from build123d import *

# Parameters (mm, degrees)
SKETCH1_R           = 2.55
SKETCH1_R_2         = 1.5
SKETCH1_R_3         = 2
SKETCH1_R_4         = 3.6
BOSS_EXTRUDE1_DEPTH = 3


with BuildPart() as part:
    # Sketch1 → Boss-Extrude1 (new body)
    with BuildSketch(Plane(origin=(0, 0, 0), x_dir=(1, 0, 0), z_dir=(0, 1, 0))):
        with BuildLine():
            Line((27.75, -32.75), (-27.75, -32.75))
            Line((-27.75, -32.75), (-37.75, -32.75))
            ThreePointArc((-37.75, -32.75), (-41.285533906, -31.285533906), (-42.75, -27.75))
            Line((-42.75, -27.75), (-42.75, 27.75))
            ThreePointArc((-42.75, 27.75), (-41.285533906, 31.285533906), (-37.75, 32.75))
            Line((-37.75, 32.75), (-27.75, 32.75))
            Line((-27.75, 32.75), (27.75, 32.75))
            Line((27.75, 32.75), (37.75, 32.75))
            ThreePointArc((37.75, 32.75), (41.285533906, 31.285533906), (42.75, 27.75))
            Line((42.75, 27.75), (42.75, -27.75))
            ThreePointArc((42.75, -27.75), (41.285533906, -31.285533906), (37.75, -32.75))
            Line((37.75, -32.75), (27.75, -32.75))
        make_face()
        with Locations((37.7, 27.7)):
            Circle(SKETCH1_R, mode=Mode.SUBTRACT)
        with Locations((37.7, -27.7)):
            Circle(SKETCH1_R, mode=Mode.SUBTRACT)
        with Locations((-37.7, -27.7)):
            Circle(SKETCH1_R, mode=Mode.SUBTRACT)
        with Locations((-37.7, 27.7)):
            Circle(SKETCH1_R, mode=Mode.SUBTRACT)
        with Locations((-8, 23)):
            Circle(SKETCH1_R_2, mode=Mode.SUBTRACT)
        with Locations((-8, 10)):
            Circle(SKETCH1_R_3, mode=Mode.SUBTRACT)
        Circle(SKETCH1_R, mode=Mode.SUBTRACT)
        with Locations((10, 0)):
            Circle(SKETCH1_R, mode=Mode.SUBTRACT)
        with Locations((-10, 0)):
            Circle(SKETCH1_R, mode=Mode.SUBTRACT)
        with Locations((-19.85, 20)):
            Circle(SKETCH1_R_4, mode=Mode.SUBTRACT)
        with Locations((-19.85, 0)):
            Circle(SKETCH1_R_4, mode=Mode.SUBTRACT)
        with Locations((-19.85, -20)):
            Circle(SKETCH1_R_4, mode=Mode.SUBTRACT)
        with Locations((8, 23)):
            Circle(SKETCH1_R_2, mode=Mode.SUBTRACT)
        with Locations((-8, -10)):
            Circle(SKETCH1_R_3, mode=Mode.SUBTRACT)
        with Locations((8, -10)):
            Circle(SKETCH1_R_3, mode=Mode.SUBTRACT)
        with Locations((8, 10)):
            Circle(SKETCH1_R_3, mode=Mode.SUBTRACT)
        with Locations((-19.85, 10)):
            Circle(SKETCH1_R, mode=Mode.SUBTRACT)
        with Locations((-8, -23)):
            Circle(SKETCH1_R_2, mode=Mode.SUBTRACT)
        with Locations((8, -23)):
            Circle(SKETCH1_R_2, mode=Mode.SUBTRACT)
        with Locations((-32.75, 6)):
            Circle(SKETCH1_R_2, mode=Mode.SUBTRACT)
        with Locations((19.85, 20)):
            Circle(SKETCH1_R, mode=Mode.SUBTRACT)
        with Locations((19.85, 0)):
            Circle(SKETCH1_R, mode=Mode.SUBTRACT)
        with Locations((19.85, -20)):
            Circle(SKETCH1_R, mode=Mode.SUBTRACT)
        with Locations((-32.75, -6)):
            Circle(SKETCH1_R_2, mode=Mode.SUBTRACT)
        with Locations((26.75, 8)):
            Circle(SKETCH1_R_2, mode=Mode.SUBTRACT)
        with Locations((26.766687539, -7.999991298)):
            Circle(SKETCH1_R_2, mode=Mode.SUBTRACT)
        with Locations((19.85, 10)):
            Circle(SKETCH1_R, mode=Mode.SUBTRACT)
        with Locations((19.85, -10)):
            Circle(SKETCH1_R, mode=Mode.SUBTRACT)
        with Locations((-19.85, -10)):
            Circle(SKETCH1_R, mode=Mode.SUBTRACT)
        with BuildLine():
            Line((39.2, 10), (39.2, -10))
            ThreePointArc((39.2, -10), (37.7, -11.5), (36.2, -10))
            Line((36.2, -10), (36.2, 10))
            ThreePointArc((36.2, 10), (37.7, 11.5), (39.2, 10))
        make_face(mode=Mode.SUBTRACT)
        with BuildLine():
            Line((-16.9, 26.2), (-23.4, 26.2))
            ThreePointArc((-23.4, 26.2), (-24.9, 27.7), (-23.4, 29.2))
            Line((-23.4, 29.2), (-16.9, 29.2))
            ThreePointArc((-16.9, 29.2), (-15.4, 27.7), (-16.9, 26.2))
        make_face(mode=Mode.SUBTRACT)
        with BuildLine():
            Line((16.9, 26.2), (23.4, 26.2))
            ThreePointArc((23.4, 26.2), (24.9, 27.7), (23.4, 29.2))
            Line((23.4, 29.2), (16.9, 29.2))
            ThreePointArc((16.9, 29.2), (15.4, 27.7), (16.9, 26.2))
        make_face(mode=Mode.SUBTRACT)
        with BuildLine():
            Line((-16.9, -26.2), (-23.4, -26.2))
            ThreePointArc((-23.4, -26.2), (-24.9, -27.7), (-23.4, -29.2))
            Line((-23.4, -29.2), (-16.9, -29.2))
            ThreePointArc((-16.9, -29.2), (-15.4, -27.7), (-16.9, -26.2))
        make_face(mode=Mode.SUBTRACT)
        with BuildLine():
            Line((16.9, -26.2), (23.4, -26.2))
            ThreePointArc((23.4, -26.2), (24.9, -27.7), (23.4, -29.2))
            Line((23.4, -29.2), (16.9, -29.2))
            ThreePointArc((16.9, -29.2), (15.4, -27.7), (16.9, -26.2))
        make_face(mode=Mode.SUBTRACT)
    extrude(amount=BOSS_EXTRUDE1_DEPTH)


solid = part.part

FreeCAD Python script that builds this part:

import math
import FreeCAD as App
import Part
import Sketcher

doc = App.newDocument("Part")
body = doc.addObject("PartDesign::Body", "Body")

# Sketch on XZ plane
sketch1 = body.newObject("Sketcher::SketchObject", "Sketch")
sketch1.AttachmentSupport = (doc.getObject("XZ_Plane"), [""])
sketch1.MapMode = "FlatFace"
sketch1.addGeometry([
    Part.ArcOfCircle(Part.Circle(App.Vector(-37.8, 27.8, 0), App.Vector(0, 0, 1), 5), math.radians(90), math.radians(180)),  # 0
    Part.LineSegment(App.Vector(-37.8, 32.8, 0), App.Vector(37.8, 32.8, 0)),  # 1
    Part.ArcOfCircle(Part.Circle(App.Vector(37.8, 27.8, 0), App.Vector(0, 0, 1), 5), math.radians(0), math.radians(90)),  # 2
    Part.LineSegment(App.Vector(42.8, 27.8, 0), App.Vector(42.8, -27.8, 0)),  # 3
    Part.ArcOfCircle(Part.Circle(App.Vector(37.8, -27.8, 0), App.Vector(0, 0, 1), 5), math.radians(-90), math.radians(0)),  # 4
    Part.LineSegment(App.Vector(37.8, -32.8, 0), App.Vector(-37.8, -32.8, 0)),  # 5
    Part.ArcOfCircle(Part.Circle(App.Vector(-37.8, -27.8, 0), App.Vector(0, 0, 1), 5), math.radians(180), math.radians(270)),  # 6
    Part.LineSegment(App.Vector(-42.8, -27.8, 0), App.Vector(-42.8, 27.8, 0)),  # 7
    Part.Circle(App.Vector(37.7, 27.7, 0), App.Vector(0, 0, 1), 2.5),  # 8
    Part.LineSegment(App.Vector(16.9, 26.2, 0), App.Vector(23.4, 26.2, 0)),  # 9
    Part.ArcOfCircle(Part.Circle(App.Vector(23.4, 27.7, 0), App.Vector(0, 0, 1), 1.5), math.radians(-90), math.radians(90)),  # 10
    Part.LineSegment(App.Vector(23.4, 29.2, 0), App.Vector(16.9, 29.2, 0)),  # 11
    Part.ArcOfCircle(Part.Circle(App.Vector(16.9, 27.7, 0), App.Vector(0, 0, 1), 1.5), math.radians(90), math.radians(270)),  # 12
    Part.Circle(App.Vector(8, 23, 0), App.Vector(0, 0, 1), 1.5),  # 13
    Part.Circle(App.Vector(19.9, 20, 0), App.Vector(0, 0, 1), 2.5),  # 14
    Part.Circle(App.Vector(26.8, 8, 0), App.Vector(0, 0, 1), 1.5),  # 15
    Part.LineSegment(App.Vector(39.2, -10, 0), App.Vector(39.2, 10, 0)),  # 16
    Part.ArcOfCircle(Part.Circle(App.Vector(37.7, 10, 0), App.Vector(0, 0, 1), 1.5), math.radians(0), math.radians(180)),  # 17
    Part.LineSegment(App.Vector(36.2, 10, 0), App.Vector(36.2, -10, 0)),  # 18
    Part.ArcOfCircle(Part.Circle(App.Vector(37.7, -10, 0), App.Vector(0, 0, 1), 1.5), math.radians(180), math.radians(360)),  # 19
    Part.Circle(App.Vector(19.9, 10, 0), App.Vector(0, 0, 1), 2.5),  # 20
    Part.Circle(App.Vector(8, 10, 0), App.Vector(0, 0, 1), 2),  # 21
    Part.Circle(App.Vector(19.9, 0, 0), App.Vector(0, 0, 1), 2.5),  # 22
    Part.Circle(App.Vector(10, 0, 0), App.Vector(0, 0, 1), 2.5),  # 23
    Part.Circle(App.Vector(0, 0, 0), App.Vector(0, 0, 1), 2.5),  # 24
    Part.Circle(App.Vector(-8, 23, 0), App.Vector(0, 0, 1), 1.5),  # 25
    Part.Circle(App.Vector(-19.9, 20, 0), App.Vector(0, 0, 1), 3.6),  # 26
    Part.ArcOfCircle(Part.Circle(App.Vector(-16.9, 27.7, 0), App.Vector(0, 0, 1), 1.5), math.radians(-90), math.radians(90)),  # 27
    Part.LineSegment(App.Vector(-16.9, 29.2, 0), App.Vector(-23.4, 29.2, 0)),  # 28
    Part.ArcOfCircle(Part.Circle(App.Vector(-23.4, 27.7, 0), App.Vector(0, 0, 1), 1.5), math.radians(90), math.radians(270)),  # 29
    Part.LineSegment(App.Vector(-23.4, 26.2, 0), App.Vector(-16.9, 26.2, 0)),  # 30
    Part.Circle(App.Vector(-37.7, 27.7, 0), App.Vector(0, 0, 1), 2.5),  # 31
    Part.Circle(App.Vector(-8, 10, 0), App.Vector(0, 0, 1), 2),  # 32
    Part.Circle(App.Vector(-19.9, 10, 0), App.Vector(0, 0, 1), 2.5),  # 33
    Part.Circle(App.Vector(-10, 0, 0), App.Vector(0, 0, 1), 2.5),  # 34
    Part.Circle(App.Vector(-19.9, 0, 0), App.Vector(0, 0, 1), 3.6),  # 35
    Part.Circle(App.Vector(-32.8, 6, 0), App.Vector(0, 0, 1), 1.5),  # 36
    Part.Circle(App.Vector(26.8, -8, 0), App.Vector(0, 0, 1), 1.5),  # 37
    Part.Circle(App.Vector(19.9, -10, 0), App.Vector(0, 0, 1), 2.5),  # 38
    Part.Circle(App.Vector(8, -10, 0), App.Vector(0, 0, 1), 2),  # 39
    Part.Circle(App.Vector(37.7, -27.7, 0), App.Vector(0, 0, 1), 2.5),  # 40
    Part.ArcOfCircle(Part.Circle(App.Vector(16.9, -27.7, 0), App.Vector(0, 0, 1), 1.5), math.radians(90), math.radians(270)),  # 41
    Part.LineSegment(App.Vector(16.9, -29.2, 0), App.Vector(23.4, -29.2, 0)),  # 42
    Part.ArcOfCircle(Part.Circle(App.Vector(23.4, -27.7, 0), App.Vector(0, 0, 1), 1.5), math.radians(-90), math.radians(90)),  # 43
    Part.LineSegment(App.Vector(23.4, -26.2, 0), App.Vector(16.9, -26.2, 0)),  # 44
    Part.Circle(App.Vector(19.9, -20, 0), App.Vector(0, 0, 1), 2.5),  # 45
    Part.Circle(App.Vector(8, -23, 0), App.Vector(0, 0, 1), 1.5),  # 46
    Part.Circle(App.Vector(-8, -10, 0), App.Vector(0, 0, 1), 2),  # 47
    Part.Circle(App.Vector(-19.9, -10, 0), App.Vector(0, 0, 1), 2.5),  # 48
    Part.Circle(App.Vector(-32.8, -6, 0), App.Vector(0, 0, 1), 1.5),  # 49
    Part.Circle(App.Vector(-19.9, -20, 0), App.Vector(0, 0, 1), 3.6),  # 50
    Part.Circle(App.Vector(-8, -23, 0), App.Vector(0, 0, 1), 1.5),  # 51
    Part.LineSegment(App.Vector(-16.9, -26.2, 0), App.Vector(-23.4, -26.2, 0)),  # 52
    Part.ArcOfCircle(Part.Circle(App.Vector(-23.4, -27.7, 0), App.Vector(0, 0, 1), 1.5), math.radians(90), math.radians(270)),  # 53
    Part.LineSegment(App.Vector(-23.4, -29.2, 0), App.Vector(-16.9, -29.2, 0)),  # 54
    Part.ArcOfCircle(Part.Circle(App.Vector(-16.9, -27.7, 0), App.Vector(0, 0, 1), 1.5), math.radians(-90), math.radians(90)),  # 55
    Part.Circle(App.Vector(-37.7, -27.7, 0), App.Vector(0, 0, 1), 2.5),  # 56
], False)
sketch1.addConstraint([
    Sketcher.Constraint("Tangent", 0, 1, 1, 1),
    Sketcher.Constraint("Tangent", 1, 2, 2, 2),
    Sketcher.Constraint("Tangent", 2, 1, 3, 1),
    Sketcher.Constraint("Tangent", 3, 2, 4, 2),
    Sketcher.Constraint("Tangent", 4, 1, 5, 1),
    Sketcher.Constraint("Tangent", 5, 2, 6, 2),
    Sketcher.Constraint("Tangent", 6, 1, 7, 1),
    Sketcher.Constraint("Tangent", 7, 2, 0, 2),
    Sketcher.Constraint("Tangent", 9, 2, 10, 1),
    Sketcher.Constraint("Tangent", 10, 2, 11, 1),
    Sketcher.Constraint("Tangent", 11, 2, 12, 1),
    Sketcher.Constraint("Tangent", 12, 2, 9, 1),
    Sketcher.Constraint("Tangent", 16, 2, 17, 1),
    Sketcher.Constraint("Tangent", 17, 2, 18, 1),
    Sketcher.Constraint("Tangent", 18, 2, 19, 1),
    Sketcher.Constraint("Tangent", 19, 2, 16, 1),
    Sketcher.Constraint("Tangent", 27, 2, 28, 1),
    Sketcher.Constraint("Tangent", 28, 2, 29, 1),
    Sketcher.Constraint("Tangent", 29, 2, 30, 1),
    Sketcher.Constraint("Tangent", 30, 2, 27, 1),
    Sketcher.Constraint("Tangent", 41, 2, 42, 1),
    Sketcher.Constraint("Tangent", 42, 2, 43, 1),
    Sketcher.Constraint("Tangent", 43, 2, 44, 1),
    Sketcher.Constraint("Tangent", 44, 2, 41, 1),
    Sketcher.Constraint("Tangent", 52, 2, 53, 1),
    Sketcher.Constraint("Tangent", 53, 2, 54, 1),
    Sketcher.Constraint("Tangent", 54, 2, 55, 1),
    Sketcher.Constraint("Tangent", 55, 2, 52, 1),
    Sketcher.Constraint("Horizontal", 1),
    Sketcher.Constraint("Vertical", 3),
    Sketcher.Constraint("Horizontal", 5),
    Sketcher.Constraint("Vertical", 7),
    Sketcher.Constraint("Horizontal", 9),
    Sketcher.Constraint("Horizontal", 11),
    Sketcher.Constraint("Vertical", 16),
    Sketcher.Constraint("Vertical", 18),
    Sketcher.Constraint("Horizontal", 28),
    Sketcher.Constraint("Horizontal", 30),
    Sketcher.Constraint("Horizontal", 42),
    Sketcher.Constraint("Horizontal", 44),
    Sketcher.Constraint("Horizontal", 52),
    Sketcher.Constraint("Horizontal", 54),
    Sketcher.Constraint("Coincident", 24, 3, -1, 1),
    Sketcher.Constraint("Equal", 0, 2),
    Sketcher.Constraint("Equal", 2, 4),
    Sketcher.Constraint("Equal", 4, 6),
    Sketcher.Constraint("Equal", 12, 13),
    Sketcher.Constraint("Equal", 8, 14),
    Sketcher.Constraint("Equal", 13, 15),
    Sketcher.Constraint("Equal", 15, 17),
    Sketcher.Constraint("Equal", 14, 20),
    Sketcher.Constraint("Equal", 20, 22),
    Sketcher.Constraint("Equal", 22, 23),
    Sketcher.Constraint("Equal", 23, 24),
    Sketcher.Constraint("Equal", 19, 25),
    Sketcher.Constraint("Equal", 25, 27),
    Sketcher.Constraint("Equal", 24, 31),
    Sketcher.Constraint("Equal", 21, 32),
    Sketcher.Constraint("Equal", 31, 33),
    Sketcher.Constraint("Equal", 33, 34),
    Sketcher.Constraint("Equal", 26, 35),
    Sketcher.Constraint("Equal", 29, 36),
    Sketcher.Constraint("Equal", 36, 37),
    Sketcher.Constraint("Equal", 34, 38),
    Sketcher.Constraint("Equal", 32, 39),
    Sketcher.Constraint("Equal", 38, 40),
    Sketcher.Constraint("Equal", 37, 41),
    Sketcher.Constraint("Equal", 40, 45),
    Sketcher.Constraint("Equal", 43, 46),
    Sketcher.Constraint("Equal", 39, 47),
    Sketcher.Constraint("Equal", 45, 48),
    Sketcher.Constraint("Equal", 46, 49),
    Sketcher.Constraint("Equal", 35, 50),
    Sketcher.Constraint("Equal", 49, 51),
    Sketcher.Constraint("Equal", 51, 53),
    Sketcher.Constraint("Equal", 48, 56),
    Sketcher.Constraint("Symmetric", 0, 3, 4, 3, -1, 1),
    Sketcher.Constraint("Symmetric", 23, 3, 34, 3, -1, 1),
    Sketcher.Constraint("Symmetric", 22, 3, 35, 3, -1, 1),
    Sketcher.Constraint("Symmetric", 33, 3, 38, 3, -1, 1),
    Sketcher.Constraint("Symmetric", 32, 3, 39, 3, -1, 1),
    Sketcher.Constraint("Symmetric", 31, 3, 40, 3, -1, 1),
    Sketcher.Constraint("Symmetric", 27, 3, 41, 3, -1, 1),
    Sketcher.Constraint("Symmetric", 26, 3, 45, 3, -1, 1),
    Sketcher.Constraint("Symmetric", 25, 3, 46, 3, -1, 1),
    Sketcher.Constraint("Symmetric", 21, 3, 47, 3, -1, 1),
    Sketcher.Constraint("Symmetric", 20, 3, 48, 3, -1, 1),
    Sketcher.Constraint("Symmetric", 14, 3, 50, 3, -1, 1),
    Sketcher.Constraint("Symmetric", 13, 3, 51, 3, -1, 1),
    Sketcher.Constraint("Symmetric", 10, 3, 53, 3, -1, 1),
    Sketcher.Constraint("Symmetric", 8, 3, 56, 3, -1, 1),
    Sketcher.Constraint("Symmetric", 13, 3, 25, 3, -2),
    Sketcher.Constraint("Symmetric", 14, 3, 26, 3, -2),
    Sketcher.Constraint("Symmetric", 12, 3, 27, 3, -2),
    Sketcher.Constraint("Symmetric", 8, 3, 31, 3, -2),
    Sketcher.Constraint("Symmetric", 21, 3, 32, 3, -2),
    Sketcher.Constraint("Symmetric", 20, 3, 33, 3, -2),
    Sketcher.Constraint("Symmetric", 36, 3, 49, 3, -1),
    Sketcher.Constraint("PointOnObject", 22, 3, -1),
    Sketcher.Constraint("PointOnObject", 23, 3, -1),
    Sketcher.Constraint("Horizontal", 8, 3, 10, 3),
    Sketcher.Constraint("Horizontal", 17, 3, 20, 3),
    Sketcher.Constraint("Horizontal", 20, 3, 21, 3),
    Sketcher.Constraint("Horizontal", 19, 3, 38, 3),
    Sketcher.Constraint("Vertical", 8, 3, 17, 3),
    Sketcher.Constraint("Vertical", 14, 3, 20, 3),
    Sketcher.Constraint("Vertical", 13, 3, 21, 3),
    Sketcher.Constraint("Vertical", 20, 3, 22, 3),
    Sketcher.Constraint("Vertical", 10, 3, 43, 3),
    Sketcher.Constraint("Vertical", 29, 3, 53, 3),
    Sketcher.Constraint("Vertical", 27, 3, 55, 3),
    Sketcher.Constraint("Diameter", 13, 3.0),
    Sketcher.Constraint("Diameter", 21, 4.0),
    Sketcher.Constraint("Radius", 0, 5.0),
    Sketcher.Constraint("Diameter", 8, 5.1),
    Sketcher.Constraint("Diameter", 26, 7.2),
    Sketcher.Constraint("DistanceY", 16, 1, 16, 2, 20.0),
    Sketcher.Constraint("DistanceX", 1, 1, 1, 2, 75.5),
    Sketcher.Constraint("DistanceX", 9, 1, 9, 2, 6.5),
    Sketcher.Constraint("DistanceY", 3, 2, 3, 1, 55.5),
    Sketcher.Constraint("DistanceX", -1, 1, 13, 3, 8.0),
    Sketcher.Constraint("DistanceY", -1, 1, 13, 3, 23.0),
    Sketcher.Constraint("DistanceY", -1, 1, 14, 3, 20.0),
    Sketcher.Constraint("DistanceX", -1, 1, 23, 3, 10.0),
    Sketcher.Constraint("DistanceY", -1, 1, 36, 3, 6.0),
    Sketcher.Constraint("DistanceY", 37, 3, -1, 1, 8.0),
    Sketcher.Constraint("DistanceX", -1, 1, 8, 3, 37.7),
    Sketcher.Constraint("DistanceY", -1, 1, 8, 3, 27.7),
    Sketcher.Constraint("DistanceX", -1, 1, 10, 3, 23.4),
    Sketcher.Constraint("DistanceX", -1, 1, 14, 3, 19.85),
    Sketcher.Constraint("DistanceX", 36, 3, -1, 1, 32.75),
    Sketcher.Constraint("DistanceX", -1, 1, 37, 3, 26.75),
    Sketcher.Constraint("DistanceY", -1, 1, 15, 3, 7.999991),
    Sketcher.Constraint("DistanceX", -1, 1, 15, 3, 26.766688),
])
pad1 = body.newObject("PartDesign::Pad", "Pad")
pad1.Profile = sketch1
pad1.Length = 3
pad1.Reversed = True

doc.recompute()
